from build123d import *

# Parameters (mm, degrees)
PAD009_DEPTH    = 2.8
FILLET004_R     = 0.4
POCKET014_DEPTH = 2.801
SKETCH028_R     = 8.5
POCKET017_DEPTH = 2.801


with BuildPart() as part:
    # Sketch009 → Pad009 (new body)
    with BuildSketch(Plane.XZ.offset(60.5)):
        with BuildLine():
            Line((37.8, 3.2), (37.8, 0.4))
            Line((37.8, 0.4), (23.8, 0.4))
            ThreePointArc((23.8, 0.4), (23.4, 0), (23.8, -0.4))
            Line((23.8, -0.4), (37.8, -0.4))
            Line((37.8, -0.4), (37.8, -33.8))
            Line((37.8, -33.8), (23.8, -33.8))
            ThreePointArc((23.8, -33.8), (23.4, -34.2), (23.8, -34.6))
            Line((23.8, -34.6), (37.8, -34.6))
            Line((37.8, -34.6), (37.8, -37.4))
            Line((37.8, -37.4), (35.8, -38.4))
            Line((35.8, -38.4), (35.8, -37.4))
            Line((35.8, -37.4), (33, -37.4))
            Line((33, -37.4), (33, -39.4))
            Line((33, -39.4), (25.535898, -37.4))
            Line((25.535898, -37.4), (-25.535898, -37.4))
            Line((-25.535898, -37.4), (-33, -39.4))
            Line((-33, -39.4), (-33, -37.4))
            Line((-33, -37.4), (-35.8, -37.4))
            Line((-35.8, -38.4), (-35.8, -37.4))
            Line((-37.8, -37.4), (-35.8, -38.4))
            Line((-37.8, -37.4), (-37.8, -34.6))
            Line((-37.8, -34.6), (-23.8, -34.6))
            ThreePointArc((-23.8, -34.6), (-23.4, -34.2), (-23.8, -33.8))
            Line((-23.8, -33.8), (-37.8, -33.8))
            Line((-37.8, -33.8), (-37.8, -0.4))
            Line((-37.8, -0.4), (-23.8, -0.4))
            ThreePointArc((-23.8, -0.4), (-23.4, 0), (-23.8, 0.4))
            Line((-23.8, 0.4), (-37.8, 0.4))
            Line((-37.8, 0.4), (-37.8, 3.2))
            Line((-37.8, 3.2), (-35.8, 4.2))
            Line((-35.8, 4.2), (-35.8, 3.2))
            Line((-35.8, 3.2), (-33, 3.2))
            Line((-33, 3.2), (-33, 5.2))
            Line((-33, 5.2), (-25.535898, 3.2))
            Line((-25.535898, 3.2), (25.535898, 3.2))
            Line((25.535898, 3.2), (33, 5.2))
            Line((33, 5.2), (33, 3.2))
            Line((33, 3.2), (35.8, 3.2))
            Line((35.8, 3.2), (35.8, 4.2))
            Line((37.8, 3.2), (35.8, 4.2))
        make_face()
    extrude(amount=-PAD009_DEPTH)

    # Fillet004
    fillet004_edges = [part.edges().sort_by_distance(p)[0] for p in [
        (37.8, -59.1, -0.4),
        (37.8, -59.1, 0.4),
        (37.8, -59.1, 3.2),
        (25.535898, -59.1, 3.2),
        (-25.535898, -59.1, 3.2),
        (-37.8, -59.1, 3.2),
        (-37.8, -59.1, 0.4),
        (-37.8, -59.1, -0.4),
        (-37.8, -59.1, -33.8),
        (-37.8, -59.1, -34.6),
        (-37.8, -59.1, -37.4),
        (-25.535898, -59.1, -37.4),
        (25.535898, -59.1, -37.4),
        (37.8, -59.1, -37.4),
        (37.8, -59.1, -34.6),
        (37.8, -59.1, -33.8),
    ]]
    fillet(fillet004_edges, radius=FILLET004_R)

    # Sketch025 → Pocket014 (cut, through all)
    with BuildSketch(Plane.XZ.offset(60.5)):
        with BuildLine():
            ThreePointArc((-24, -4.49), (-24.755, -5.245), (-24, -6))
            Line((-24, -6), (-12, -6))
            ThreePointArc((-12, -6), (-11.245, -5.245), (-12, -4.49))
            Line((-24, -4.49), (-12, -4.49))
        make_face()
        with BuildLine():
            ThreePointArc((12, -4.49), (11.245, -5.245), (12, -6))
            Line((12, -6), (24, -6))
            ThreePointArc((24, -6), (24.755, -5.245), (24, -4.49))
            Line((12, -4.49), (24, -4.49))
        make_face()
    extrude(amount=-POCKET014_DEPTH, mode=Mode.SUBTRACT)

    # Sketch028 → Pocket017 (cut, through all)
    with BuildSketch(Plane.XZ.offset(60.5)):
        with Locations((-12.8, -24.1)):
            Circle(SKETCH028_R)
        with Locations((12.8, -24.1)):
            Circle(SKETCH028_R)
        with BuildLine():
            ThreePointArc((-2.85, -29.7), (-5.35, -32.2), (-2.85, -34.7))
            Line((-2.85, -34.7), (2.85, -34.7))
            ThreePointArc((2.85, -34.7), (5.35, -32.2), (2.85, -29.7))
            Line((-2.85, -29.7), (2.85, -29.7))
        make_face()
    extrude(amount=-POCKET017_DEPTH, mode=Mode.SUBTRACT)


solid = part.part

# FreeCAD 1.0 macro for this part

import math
import FreeCAD as App
import Part
import Sketcher

V = App.Vector
Q = App.Units.Quantity


def edges_at(feature, points):
    """Names of the edges that pass closest to the given points."""
    edges = feature.Shape.Edges
    near = lambda p: min(range(len(edges)), key=lambda i: edges[i].distToShape(Part.Vertex(*p))[0])
    return sorted({f"Edge{near(p) + 1}" for p in points})

doc = App.newDocument("Part")
body = doc.addObject("PartDesign::Body", "Body")

sketch1 = doc.addObject("Sketcher::SketchObject", "Sketch")
body.addObject(sketch1)
sketch1.AttachmentSupport = (doc.XZ_Plane, [""])
sketch1.MapMode = "FlatFace"
sketch1.AttachmentOffset = App.Placement(V(0, 0, 60.5), App.Rotation())
sketch1.addGeometry([
    Part.LineSegment(V(37.8, 0.4, 0), V(37.8, 3.2, 0)),
    Part.LineSegment(V(37.8, 3.2, 0), V(35.8, 4.2, 0)),
    Part.LineSegment(V(35.8, 4.2, 0), V(35.8, 3.2, 0)),
    Part.LineSegment(V(35.8, 3.2, 0), V(33, 3.2, 0)),
    Part.LineSegment(V(33, 3.2, 0), V(33, 5.2, 0)),
    Part.LineSegment(V(33, 5.2, 0), V(25.54, 3.2, 0)),
    Part.LineSegment(V(25.54, 3.2, 0), V(-25.54, 3.2, 0)),
    Part.LineSegment(V(-25.54, 3.2, 0), V(-33, 5.2, 0)),
    Part.LineSegment(V(-33, 5.2, 0), V(-33, 3.2, 0)),
    Part.LineSegment(V(-33, 3.2, 0), V(-35.8, 3.2, 0)),
    Part.LineSegment(V(-35.8, 3.2, 0), V(-35.8, 4.2, 0)),
    Part.LineSegment(V(-35.8, 4.2, 0), V(-37.8, 3.2, 0)),
    Part.LineSegment(V(-37.8, 3.2, 0), V(-37.8, 0.4, 0)),
    Part.LineSegment(V(-37.8, 0.4, 0), V(-23.8, 0.4, 0)),
    Part.ArcOfCircle(Part.Circle(V(-23.8, 0, 0), V(0, 0, 1), 0.4), math.radians(-90), math.radians(90)),
    Part.LineSegment(V(-23.8, -0.4, 0), V(-37.8, -0.4, 0)),
    Part.LineSegment(V(-37.8, -0.4, 0), V(-37.8, -33.8, 0)),
    Part.LineSegment(V(-37.8, -33.8, 0), V(-23.8, -33.8, 0)),
    Part.ArcOfCircle(Part.Circle(V(-23.8, -34.2, 0), V(0, 0, 1), 0.4), math.radians(-90), math.radians(90)),
    Part.LineSegment(V(-23.8, -34.6, 0), V(-37.8, -34.6, 0)),
    Part.LineSegment(V(-37.8, -34.6, 0), V(-37.8, -37.4, 0)),
    Part.LineSegment(V(-37.8, -37.4, 0), V(-35.8, -38.4, 0)),
    Part.LineSegment(V(-35.8, -38.4, 0), V(-35.8, -37.4, 0)),
    Part.LineSegment(V(-35.8, -37.4, 0), V(-33, -37.4, 0)),
    Part.LineSegment(V(-33, -37.4, 0), V(-33, -39.4, 0)),
    Part.LineSegment(V(-33, -39.4, 0), V(-25.54, -37.4, 0)),
    Part.LineSegment(V(-25.54, -37.4, 0), V(25.54, -37.4, 0)),
    Part.LineSegment(V(25.54, -37.4, 0), V(33, -39.4, 0)),
    Part.LineSegment(V(33, -39.4, 0), V(33, -37.4, 0)),
    Part.LineSegment(V(33, -37.4, 0), V(35.8, -37.4, 0)),
    Part.LineSegment(V(35.8, -37.4, 0), V(35.8, -38.4, 0)),
    Part.LineSegment(V(35.8, -38.4, 0), V(37.8, -37.4, 0)),
    Part.LineSegment(V(37.8, -37.4, 0), V(37.8, -34.6, 0)),
    Part.LineSegment(V(37.8, -34.6, 0), V(23.8, -34.6, 0)),
    Part.ArcOfCircle(Part.Circle(V(23.8, -34.2, 0), V(0, 0, 1), 0.4), math.radians(90), math.radians(270)),
    Part.LineSegment(V(23.8, -33.8, 0), V(37.8, -33.8, 0)),
    Part.LineSegment(V(37.8, -33.8, 0), V(37.8, -0.4, 0)),
    Part.LineSegment(V(37.8, -0.4, 0), V(23.8, -0.4, 0)),
    Part.ArcOfCircle(Part.Circle(V(23.8, 0, 0), V(0, 0, 1), 0.4), math.radians(90), math.radians(270)),
    Part.LineSegment(V(23.8, 0.4, 0), V(37.8, 0.4, 0)),
], False)
sketch1.addConstraint([
    Sketcher.Constraint("Coincident", 0, 2, 1, 1),
    Sketcher.Constraint("Coincident", 1, 2, 2, 1),
    Sketcher.Constraint("Coincident", 2, 2, 3, 1),
    Sketcher.Constraint("Coincident", 3, 2, 4, 1),
    Sketcher.Constraint("Coincident", 4, 2, 5, 1),
    Sketcher.Constraint("Coincident", 5, 2, 6, 1),
    Sketcher.Constraint("Coincident", 6, 2, 7, 1),
    Sketcher.Constraint("Coincident", 7, 2, 8, 1),
    Sketcher.Constraint("Coincident", 8, 2, 9, 1),
    Sketcher.Constraint("Coincident", 9, 2, 10, 1),
    Sketcher.Constraint("Coincident", 10, 2, 11, 1),
    Sketcher.Constraint("Coincident", 11, 2, 12, 1),
    Sketcher.Constraint("Coincident", 12, 2, 13, 1),
    Sketcher.Constraint("Tangent", 13, 2, 14, 2),
    Sketcher.Constraint("Tangent", 14, 1, 15, 1),
    Sketcher.Constraint("Coincident", 15, 2, 16, 1),
    Sketcher.Constraint("Coincident", 16, 2, 17, 1),
    Sketcher.Constraint("Tangent", 17, 2, 18, 2),
    Sketcher.Constraint("Tangent", 18, 1, 19, 1),
    Sketcher.Constraint("Coincident", 19, 2, 20, 1),
    Sketcher.Constraint("Coincident", 20, 2, 21, 1),
    Sketcher.Constraint("Coincident", 21, 2, 22, 1),
    Sketcher.Constraint("Coincident", 22, 2, 23, 1),
    Sketcher.Constraint("Coincident", 23, 2, 24, 1),
    Sketcher.Constraint("Coincident", 24, 2, 25, 1),
    Sketcher.Constraint("Coincident", 25, 2, 26, 1),
    Sketcher.Constraint("Coincident", 26, 2, 27, 1),
    Sketcher.Constraint("Coincident", 27, 2, 28, 1),
    Sketcher.Constraint("Coincident", 28, 2, 29, 1),
    Sketcher.Constraint("Coincident", 29, 2, 30, 1),
    Sketcher.Constraint("Coincident", 30, 2, 31, 1),
    Sketcher.Constraint("Coincident", 31, 2, 32, 1),
    Sketcher.Constraint("Coincident", 32, 2, 33, 1),
    Sketcher.Constraint("Tangent", 33, 2, 34, 2),
    Sketcher.Constraint("Tangent", 34, 1, 35, 1),
    Sketcher.Constraint("Coincident", 35, 2, 36, 1),
    Sketcher.Constraint("Coincident", 36, 2, 37, 1),
    Sketcher.Constraint("Tangent", 37, 2, 38, 2),
    Sketcher.Constraint("Tangent", 38, 1, 39, 1),
    Sketcher.Constraint("Coincident", 39, 2, 0, 1),
    Sketcher.Constraint("Vertical", 0),
    Sketcher.Constraint("Vertical", 2),
    Sketcher.Constraint("Horizontal", 3),
    Sketcher.Constraint("Vertical", 4),
    Sketcher.Constraint("Horizontal", 6),
    Sketcher.Constraint("Vertical", 8),
    Sketcher.Constraint("Horizontal", 9),
    Sketcher.Constraint("Vertical", 10),
    Sketcher.Constraint("Vertical", 12),
    Sketcher.Constraint("Horizontal", 13),
    Sketcher.Constraint("Horizontal", 15),
    Sketcher.Constraint("Vertical", 16),
    Sketcher.Constraint("Horizontal", 17),
    Sketcher.Constraint("Horizontal", 19),
    Sketcher.Constraint("Vertical", 20),
    Sketcher.Constraint("Vertical", 22),
    Sketcher.Constraint("Horizontal", 23),
    Sketcher.Constraint("Vertical", 24),
    Sketcher.Constraint("Horizontal", 26),
    Sketcher.Constraint("Vertical", 28),
    Sketcher.Constraint("Horizontal", 29),
    Sketcher.Constraint("Vertical", 30),
    Sketcher.Constraint("Vertical", 32),
    Sketcher.Constraint("Horizontal", 33),
    Sketcher.Constraint("Horizontal", 35),
    Sketcher.Constraint("Vertical", 36),
    Sketcher.Constraint("Horizontal", 37),
    Sketcher.Constraint("Horizontal", 39),
    Sketcher.Constraint("Equal", 14, 18),
    Sketcher.Constraint("Equal", 18, 34),
    Sketcher.Constraint("Equal", 34, 38),
    Sketcher.Constraint("Symmetric", 14, 3, 38, 3, -1, 1),
    Sketcher.Constraint("Symmetric", 18, 3, 34, 3, -2),
    Sketcher.Constraint("Symmetric", 4, 2, 7, 2, -2),
    Sketcher.Constraint("Symmetric", 2, 2, 9, 2, -2),
    Sketcher.Constraint("Symmetric", 0, 2, 11, 2, -2),
    Sketcher.Constraint("Symmetric", 24, 2, 27, 2, -2),
    Sketcher.Constraint("Symmetric", 22, 2, 29, 2, -2),
    Sketcher.Constraint("Symmetric", 20, 2, 31, 2, -2),
    Sketcher.Constraint("Symmetric", 15, 2, 36, 2, -2),
    Sketcher.Constraint("Parallel", 1, 21),
    Sketcher.Constraint("Parallel", 5, 25),
    Sketcher.Constraint("Parallel", 7, 27),
    Sketcher.Constraint("Parallel", 11, 31),
    Sketcher.Constraint("Horizontal", 0, 2, 2, 2),
    Sketcher.Constraint("Horizontal", 3, 2, 5, 2),
    Sketcher.Constraint("Horizontal", 1, 2, 10, 2),
    Sketcher.Constraint("Horizontal", 20, 2, 22, 2),
    Sketcher.Constraint("Horizontal", 23, 2, 25, 2),
    Sketcher.Constraint("Vertical", 14, 3, 18, 3),
    Sketcher.Constraint("Vertical", 12, 2, 15, 2),
    Sketcher.Constraint("Vertical", 16, 2, 19, 2),
    Sketcher.Constraint("Vertical", 10, 2, 21, 2),
    Sketcher.Constraint("Vertical", 8, 2, 23, 2),
    Sketcher.Constraint("Vertical", 6, 2, 25, 2),
    Sketcher.Constraint("Vertical", 5, 2, 26, 2),
    Sketcher.Constraint("Equal", 29, 0),
    Sketcher.Constraint("Equal", 12, 20),
    Sketcher.Constraint("Radius", 14, 0.4),
    Sketcher.Constraint("DistanceX", 13, 1, 13, 2, 14.0),
    Sketcher.Constraint("DistanceY", 2, 2, 2, 1, 1.0),
    Sketcher.Constraint("DistanceY", 4, 1, 4, 2, 2.0),
    Sketcher.Constraint("Angle", 5, Q("-165.000001 deg")),
    Sketcher.Constraint("DistanceX", 3, 2, 3, 1, 2.8),
    Sketcher.Constraint("DistanceY", 16, 2, 16, 1, 33.4),
    Sketcher.Constraint("DistanceX", -1, 1, 3, 2, 33.0),
    Sketcher.Constraint("DistanceX", 1, 2, 0, 2, 2.0),
])
pad1 = doc.addObject("PartDesign::Pad", "Pad")
body.addObject(pad1)
pad1.Profile = sketch1
pad1.Length = 2.8
pad1.Reversed = True
doc.recompute()

fillet = doc.addObject("PartDesign::Fillet", "Fillet")
body.addObject(fillet)
fillet.Base = (pad1, edges_at(pad1, [
    (37.8, -59.1, -0.4),
    (37.8, -59.1, 0.4),
    (37.8, -59.1, 3.2),
    (25.536, -59.1, 3.2),
    (-25.536, -59.1, 3.2),
    (-37.8, -59.1, 3.2),
    (-37.8, -59.1, 0.4),
    (-37.8, -59.1, -0.4),
    (-37.8, -59.1, -33.8),
    (-37.8, -59.1, -34.6),
    (-37.8, -59.1, -37.4),
    (-25.536, -59.1, -37.4),
    (25.536, -59.1, -37.4),
    (37.8, -59.1, -37.4),
    (37.8, -59.1, -34.6),
    (37.8, -59.1, -33.8),
]))
fillet.Radius = 0.4

sketch2 = doc.addObject("Sketcher::SketchObject", "Sketch001")
body.addObject(sketch2)
sketch2.AttachmentSupport = (doc.XZ_Plane, [""])
sketch2.MapMode = "FlatFace"
sketch2.AttachmentOffset = App.Placement(V(0, 0, 60.5), App.Rotation())
sketch2.addGeometry([
    Part.ArcOfCircle(Part.Circle(V(-24, -5.2, 0), V(0, 0, 1), 0.8), math.radians(90), math.radians(270)),
    Part.LineSegment(V(-24, -6, 0), V(-12, -6, 0)),
    Part.ArcOfCircle(Part.Circle(V(-12, -5.2, 0), V(0, 0, 1), 0.8), math.radians(-90), math.radians(90)),
    Part.LineSegment(V(-12, -4.5, 0), V(-24, -4.5, 0)),
    Part.ArcOfCircle(Part.Circle(V(12, -5.2, 0), V(0, 0, 1), 0.8), math.radians(90), math.radians(270)),
    Part.LineSegment(V(12, -6, 0), V(24, -6, 0)),
    Part.ArcOfCircle(Part.Circle(V(24, -5.2, 0), V(0, 0, 1), 0.8), math.radians(-90), math.radians(90)),
    Part.LineSegment(V(24, -4.5, 0), V(12, -4.5, 0)),
], False)
sketch2.addConstraint([
    Sketcher.Constraint("Tangent", 0, 2, 1, 1),
    Sketcher.Constraint("Tangent", 1, 2, 2, 1),
    Sketcher.Constraint("Tangent", 2, 2, 3, 1),
    Sketcher.Constraint("Tangent", 3, 2, 0, 1),
    Sketcher.Constraint("Tangent", 4, 2, 5, 1),
    Sketcher.Constraint("Tangent", 5, 2, 6, 1),
    Sketcher.Constraint("Tangent", 6, 2, 7, 1),
    Sketcher.Constraint("Tangent", 7, 2, 4, 1),
    Sketcher.Constraint("Horizontal", 1),
    Sketcher.Constraint("Horizontal", 3),
    Sketcher.Constraint("Horizontal", 5),
    Sketcher.Constraint("Horizontal", 7),
    Sketcher.Constraint("Equal", 2, 4),
    Sketcher.Constraint("Symmetric", 2, 3, 4, 3, -2),
    Sketcher.Constraint("Equal", 3, 5),
    Sketcher.Constraint("DistanceX", 1, 1, 1, 2, 12.0),
    Sketcher.Constraint("DistanceX", 0, 3, -1, 1, 24.0),
    Sketcher.Constraint("DistanceY", 0, 2, -1, 1, 6.0),
    Sketcher.Constraint("Radius", 0, 0.755),
])
pocket1 = doc.addObject("PartDesign::Pocket", "Pocket")
body.addObject(pocket1)
pocket1.Profile = sketch2
pocket1.Type = "ThroughAll"

sketch3 = doc.addObject("Sketcher::SketchObject", "Sketch002")
body.addObject(sketch3)
sketch3.AttachmentSupport = (doc.XZ_Plane, [""])
sketch3.MapMode = "FlatFace"
sketch3.AttachmentOffset = App.Placement(V(0, 0, 60.5), App.Rotation())
sketch3.addGeometry([
    Part.Circle(V(-12.8, -24.1, 0), V(0, 0, 1), 8.5),
    Part.Circle(V(12.8, -24.1, 0), V(0, 0, 1), 8.5),
    Part.ArcOfCircle(Part.Circle(V(-2.9, -32.2, 0), V(0, 0, 1), 2.5), math.radians(90), math.radians(270)),
    Part.LineSegment(V(-2.9, -34.7, 0), V(2.9, -34.7, 0)),
    Part.ArcOfCircle(Part.Circle(V(2.9, -32.2, 0), V(0, 0, 1), 2.5), math.radians(-90), math.radians(90)),
    Part.LineSegment(V(2.9, -29.7, 0), V(-2.9, -29.7, 0)),
], False)
sketch3.addConstraint([
    Sketcher.Constraint("Tangent", 2, 2, 3, 1),
    Sketcher.Constraint("Tangent", 3, 2, 4, 1),
    Sketcher.Constraint("Tangent", 4, 2, 5, 1),
    Sketcher.Constraint("Tangent", 5, 2, 2, 1),
    Sketcher.Constraint("Horizontal", 3),
    Sketcher.Constraint("Horizontal", 5),
    Sketcher.Constraint("Equal", 0, 1),
    Sketcher.Constraint("Symmetric", 0, 3, 1, 3, -2),
    Sketcher.Constraint("Diameter", 0, 17.0),
    Sketcher.Constraint("Radius", 2, 2.5),
    Sketcher.Constraint("DistanceX", 3, 1, 3, 2, 5.7),
    Sketcher.Constraint("DistanceX", 0, 3, -1, 1, 12.8),
    Sketcher.Constraint("DistanceY", 0, 3, -1, 1, 24.1),
    Sketcher.Constraint("DistanceY", 2, 3, -1, 1, 32.2),
    Sketcher.Constraint("DistanceX", 2, 3, -1, 1, 2.85),
])
pocket2 = doc.addObject("PartDesign::Pocket", "Pocket001")
body.addObject(pocket2)
pocket2.Profile = sketch3
pocket2.Type = "ThroughAll"

doc.recompute()
